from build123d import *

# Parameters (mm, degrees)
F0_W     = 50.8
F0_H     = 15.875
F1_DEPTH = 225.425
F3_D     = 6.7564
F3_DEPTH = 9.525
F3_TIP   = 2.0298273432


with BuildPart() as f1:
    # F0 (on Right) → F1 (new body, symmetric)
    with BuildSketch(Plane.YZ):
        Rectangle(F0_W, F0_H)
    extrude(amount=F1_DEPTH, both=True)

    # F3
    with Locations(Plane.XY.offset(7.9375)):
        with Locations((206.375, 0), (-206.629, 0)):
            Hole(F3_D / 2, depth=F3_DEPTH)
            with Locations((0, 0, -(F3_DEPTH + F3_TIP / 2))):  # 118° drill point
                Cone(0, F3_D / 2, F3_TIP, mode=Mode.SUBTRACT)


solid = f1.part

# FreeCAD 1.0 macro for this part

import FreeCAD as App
import Part
import Sketcher
from FreeCAD import Vector
Q = App.Units.Quantity


def add_polygon(sketch, points):
    """Adds a closed chain of lines whose ends are joined by coincident constraints."""
    first, n = sketch.GeometryCount, len(points)
    for a, b in zip(points, points[1:] + points[:1]):
        sketch.addGeometry(Part.LineSegment(App.Vector(*a, 0), App.Vector(*b, 0)), False)
    for i in range(n):
        sketch.addConstraint(Sketcher.Constraint("Coincident", first + i, 2, first + (i + 1) % n, 1))

doc = App.newDocument("Part")
params = doc.addObject("Spreadsheet::Sheet", "Params")
for row, (alias, value) in enumerate([
    ("sketch1_width", "2 in"),
    ("sketch1_height", "0.625 in"),
    ("pad1_length", "17.75 in"),
    ("sketch2_diameter", "0.266 in"),
    ("hole_diameter", "0.266 in"),
    ("hole_depth", "0.375 in"),
], start=1):
    params.set(f"A{row}", alias)
    params.set(f"B{row}", "=" + value)
    params.setAlias(f"B{row}", alias)

body = doc.addObject("PartDesign::Body", "Body")

# Sketch on YZ plane
sketch1 = body.newObject("Sketcher::SketchObject", "Sketch")
sketch1.AttachmentSupport = (doc.getObject("YZ_Plane"), [""])
sketch1.MapMode = "FlatFace"
add_polygon(sketch1, [(-25, 8), (-25, -8), (25, -8), (25, 8)])  # lines 0-3
sketch1.addConstraint(Sketcher.Constraint("Vertical", 0))
sketch1.addConstraint(Sketcher.Constraint("Horizontal", 1))
sketch1.addConstraint(Sketcher.Constraint("Vertical", 2))
sketch1.addConstraint(Sketcher.Constraint("Horizontal", 3))
sketch1.addConstraint(Sketcher.Constraint("Symmetric", 0, 2, 2, 2, -1, 1))
sketch1.addConstraint(Sketcher.Constraint("DistanceX", 1, 1, 1, 2, Q("2 in")))
sketch1.addConstraint(Sketcher.Constraint("DistanceY", 0, 2, 0, 1, Q("0.625 in")))
sketch1.setExpression("Constraints[9]", "Params.sketch1_width")
sketch1.setExpression("Constraints[10]", "Params.sketch1_height")
pad1 = body.newObject("PartDesign::Pad", "Pad")
pad1.Profile = sketch1
pad1.setExpression("Length", "Params.pad1_length")
pad1.Midplane = True

# Sketch on XY plane
sketch2 = body.newObject("Sketcher::SketchObject", "Sketch001")
sketch2.AttachmentSupport = (doc.getObject("XY_Plane"), [""])
sketch2.MapMode = "FlatFace"
sketch2.AttachmentOffset = App.Placement(Vector(0, 0, 0.3125 * 25.4), App.Rotation())
sketch2.addGeometry(Part.Circle(Vector(206.4, 0, 0), Vector(0, 0, 1), 3.4), False)
sketch2.addGeometry(Part.Circle(Vector(-206.6, 0, 0), Vector(0, 0, 1), 3.4), False)
sketch2.addConstraint(Sketcher.Constraint("Equal", 0, 1))
sketch2.addConstraint(Sketcher.Constraint("PointOnObject", 0, 3, -1))
sketch2.addConstraint(Sketcher.Constraint("PointOnObject", 1, 3, -1))
sketch2.addConstraint(Sketcher.Constraint("Diameter", 0, Q("0.266 in")))
sketch2.addConstraint(Sketcher.Constraint("DistanceX", 1, 3, 0, 3, Q("16.26 in")))
sketch2.addConstraint(Sketcher.Constraint("DistanceX", -1, 1, 0, 3, Q("8.125 in")))
sketch2.setExpression("Constraints[3]", "Params.sketch2_diameter")
doc.recompute()
hole = body.newObject("PartDesign::Hole", "Hole")
hole.Profile = sketch2
hole.ThreadType = "None"
hole.setExpression("Diameter", "Params.hole_diameter")
hole.DepthType = "Dimension"
hole.setExpression("Depth", "Params.hole_depth")
hole.DrillPoint = "Angled"
hole.DrillPointAngle = 118

doc.recompute()
